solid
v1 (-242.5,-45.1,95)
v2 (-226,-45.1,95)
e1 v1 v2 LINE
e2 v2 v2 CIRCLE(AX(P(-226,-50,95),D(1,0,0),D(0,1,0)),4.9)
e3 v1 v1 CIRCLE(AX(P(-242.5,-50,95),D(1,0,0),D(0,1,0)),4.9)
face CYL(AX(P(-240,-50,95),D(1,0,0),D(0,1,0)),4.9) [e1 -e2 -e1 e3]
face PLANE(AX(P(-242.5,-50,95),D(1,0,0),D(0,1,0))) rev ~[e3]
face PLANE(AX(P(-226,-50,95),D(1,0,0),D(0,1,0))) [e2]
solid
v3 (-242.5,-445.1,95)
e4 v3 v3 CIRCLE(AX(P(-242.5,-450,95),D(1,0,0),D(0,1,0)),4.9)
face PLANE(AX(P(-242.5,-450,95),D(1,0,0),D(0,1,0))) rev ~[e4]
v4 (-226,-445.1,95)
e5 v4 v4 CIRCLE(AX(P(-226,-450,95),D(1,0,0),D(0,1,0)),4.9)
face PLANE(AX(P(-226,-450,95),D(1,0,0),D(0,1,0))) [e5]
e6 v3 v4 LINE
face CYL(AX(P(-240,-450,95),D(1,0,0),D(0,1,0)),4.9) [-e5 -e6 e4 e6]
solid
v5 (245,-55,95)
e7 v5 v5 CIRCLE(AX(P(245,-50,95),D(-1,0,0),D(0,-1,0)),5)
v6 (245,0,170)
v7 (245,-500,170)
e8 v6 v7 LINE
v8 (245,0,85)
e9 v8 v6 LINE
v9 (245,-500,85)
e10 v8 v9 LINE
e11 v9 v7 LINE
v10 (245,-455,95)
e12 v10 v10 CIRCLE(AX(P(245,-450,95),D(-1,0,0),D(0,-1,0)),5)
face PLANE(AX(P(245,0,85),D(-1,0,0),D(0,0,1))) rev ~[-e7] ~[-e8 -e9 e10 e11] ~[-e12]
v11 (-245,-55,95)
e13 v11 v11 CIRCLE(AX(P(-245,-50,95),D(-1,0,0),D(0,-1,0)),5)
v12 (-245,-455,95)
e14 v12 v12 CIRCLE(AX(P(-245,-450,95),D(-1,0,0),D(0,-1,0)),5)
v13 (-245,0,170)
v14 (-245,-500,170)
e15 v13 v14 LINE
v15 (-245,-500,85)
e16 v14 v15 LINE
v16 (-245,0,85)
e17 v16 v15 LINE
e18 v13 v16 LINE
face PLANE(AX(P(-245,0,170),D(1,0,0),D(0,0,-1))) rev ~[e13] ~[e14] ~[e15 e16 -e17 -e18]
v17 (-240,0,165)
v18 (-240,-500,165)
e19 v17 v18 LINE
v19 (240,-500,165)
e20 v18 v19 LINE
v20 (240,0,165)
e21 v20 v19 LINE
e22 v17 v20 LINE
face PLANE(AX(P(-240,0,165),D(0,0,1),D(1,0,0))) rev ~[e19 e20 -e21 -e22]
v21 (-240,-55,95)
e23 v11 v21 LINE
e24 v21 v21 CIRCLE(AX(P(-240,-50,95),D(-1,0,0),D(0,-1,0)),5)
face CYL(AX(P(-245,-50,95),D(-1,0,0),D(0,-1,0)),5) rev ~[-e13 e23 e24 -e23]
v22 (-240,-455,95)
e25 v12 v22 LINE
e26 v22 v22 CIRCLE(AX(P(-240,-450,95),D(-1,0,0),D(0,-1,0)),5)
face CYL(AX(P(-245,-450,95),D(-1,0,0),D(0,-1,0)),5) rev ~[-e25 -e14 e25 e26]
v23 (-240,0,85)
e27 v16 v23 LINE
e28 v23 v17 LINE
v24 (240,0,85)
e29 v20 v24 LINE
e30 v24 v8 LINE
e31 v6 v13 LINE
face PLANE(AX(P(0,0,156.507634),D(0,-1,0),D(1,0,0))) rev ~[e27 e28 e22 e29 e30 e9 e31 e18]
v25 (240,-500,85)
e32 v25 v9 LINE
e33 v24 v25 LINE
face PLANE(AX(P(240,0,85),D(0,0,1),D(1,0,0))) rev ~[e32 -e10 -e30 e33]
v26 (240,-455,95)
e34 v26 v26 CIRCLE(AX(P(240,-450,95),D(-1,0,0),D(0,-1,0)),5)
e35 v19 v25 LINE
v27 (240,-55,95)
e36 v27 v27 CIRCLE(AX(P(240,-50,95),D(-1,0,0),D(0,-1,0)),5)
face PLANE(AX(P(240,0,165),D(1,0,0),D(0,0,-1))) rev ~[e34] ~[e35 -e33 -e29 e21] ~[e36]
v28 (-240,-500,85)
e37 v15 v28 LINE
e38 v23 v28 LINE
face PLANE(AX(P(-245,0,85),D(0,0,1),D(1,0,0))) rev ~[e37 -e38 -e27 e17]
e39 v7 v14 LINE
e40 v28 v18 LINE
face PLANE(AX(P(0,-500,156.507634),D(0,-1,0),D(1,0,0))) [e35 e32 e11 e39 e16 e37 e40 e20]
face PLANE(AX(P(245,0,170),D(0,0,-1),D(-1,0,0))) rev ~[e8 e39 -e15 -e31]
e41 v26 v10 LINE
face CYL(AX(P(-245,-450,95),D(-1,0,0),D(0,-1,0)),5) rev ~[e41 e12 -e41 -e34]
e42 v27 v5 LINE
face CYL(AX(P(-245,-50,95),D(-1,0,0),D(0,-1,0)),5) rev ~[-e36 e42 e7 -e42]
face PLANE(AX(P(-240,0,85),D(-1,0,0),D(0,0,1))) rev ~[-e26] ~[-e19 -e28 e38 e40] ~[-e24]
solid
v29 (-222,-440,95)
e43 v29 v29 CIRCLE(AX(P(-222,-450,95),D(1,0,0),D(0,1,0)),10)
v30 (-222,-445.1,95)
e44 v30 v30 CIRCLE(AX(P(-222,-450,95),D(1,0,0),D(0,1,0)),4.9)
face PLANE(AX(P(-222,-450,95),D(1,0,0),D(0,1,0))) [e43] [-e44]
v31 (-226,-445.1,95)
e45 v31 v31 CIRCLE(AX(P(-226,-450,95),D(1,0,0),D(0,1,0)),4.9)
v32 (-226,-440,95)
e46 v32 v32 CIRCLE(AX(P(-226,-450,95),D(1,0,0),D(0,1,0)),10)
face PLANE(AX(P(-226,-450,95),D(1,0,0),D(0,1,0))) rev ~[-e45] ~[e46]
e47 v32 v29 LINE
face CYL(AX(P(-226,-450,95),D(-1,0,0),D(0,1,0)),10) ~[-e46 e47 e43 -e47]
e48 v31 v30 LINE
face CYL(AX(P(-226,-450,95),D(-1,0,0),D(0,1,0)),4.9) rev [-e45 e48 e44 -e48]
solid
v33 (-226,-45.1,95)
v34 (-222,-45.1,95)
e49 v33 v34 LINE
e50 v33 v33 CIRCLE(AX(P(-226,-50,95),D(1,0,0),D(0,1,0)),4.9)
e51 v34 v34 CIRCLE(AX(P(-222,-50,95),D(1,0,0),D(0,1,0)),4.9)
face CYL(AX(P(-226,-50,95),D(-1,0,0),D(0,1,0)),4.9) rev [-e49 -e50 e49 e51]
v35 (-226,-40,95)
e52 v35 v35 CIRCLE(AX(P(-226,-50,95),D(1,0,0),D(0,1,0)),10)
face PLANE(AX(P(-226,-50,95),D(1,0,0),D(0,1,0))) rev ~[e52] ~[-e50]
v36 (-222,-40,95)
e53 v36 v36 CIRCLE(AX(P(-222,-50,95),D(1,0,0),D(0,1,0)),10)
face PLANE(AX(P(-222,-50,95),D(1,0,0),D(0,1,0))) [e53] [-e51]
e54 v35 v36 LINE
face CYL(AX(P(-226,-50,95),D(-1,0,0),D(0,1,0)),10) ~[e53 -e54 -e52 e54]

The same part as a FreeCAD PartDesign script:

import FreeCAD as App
import Part
import Sketcher

doc = App.newDocument("Part")
body = doc.addObject("PartDesign::Body", "Body")

sketch1 = doc.addObject("Sketcher::SketchObject", "Sketch")
body.addObject(sketch1)
sketch1.AttachmentSupport = (doc.XZ_Plane, [""])
sketch1.MapMode = "FlatFace"
sketch1.addGeometry([
    Part.LineSegment(App.Vector(-245, 170, 0), App.Vector(-245, 85, 0)),
    Part.LineSegment(App.Vector(-245, 85, 0), App.Vector(-240, 85, 0)),
    Part.LineSegment(App.Vector(-240, 85, 0), App.Vector(-240, 165, 0)),
    Part.LineSegment(App.Vector(-240, 165, 0), App.Vector(240, 165, 0)),
    Part.LineSegment(App.Vector(240, 165, 0), App.Vector(240, 85, 0)),
    Part.LineSegment(App.Vector(240, 85, 0), App.Vector(245, 85, 0)),
    Part.LineSegment(App.Vector(245, 85, 0), App.Vector(245, 170, 0)),
    Part.LineSegment(App.Vector(245, 170, 0), App.Vector(-245, 170, 0)),
], False)
sketch1.addConstraint([
    Sketcher.Constraint("Coincident", 0, 2, 1, 1),
    Sketcher.Constraint("Coincident", 1, 2, 2, 1),
    Sketcher.Constraint("Coincident", 2, 2, 3, 1),
    Sketcher.Constraint("Coincident", 3, 2, 4, 1),
    Sketcher.Constraint("Coincident", 4, 2, 5, 1),
    Sketcher.Constraint("Coincident", 5, 2, 6, 1),
    Sketcher.Constraint("Coincident", 6, 2, 7, 1),
    Sketcher.Constraint("Coincident", 7, 2, 0, 1),
    Sketcher.Constraint("Vertical", 0),
    Sketcher.Constraint("Horizontal", 1),
    Sketcher.Constraint("Vertical", 2),
    Sketcher.Constraint("Horizontal", 3),
    Sketcher.Constraint("Vertical", 4),
    Sketcher.Constraint("Horizontal", 5),
    Sketcher.Constraint("Vertical", 6),
    Sketcher.Constraint("Horizontal", 7),
    Sketcher.Constraint("Symmetric", 1, 2, 4, 2, -2),
    Sketcher.Constraint("Equal", 1, 5),
    Sketcher.Constraint("DistanceX", 1, 1, 1, 2, 5.0),
    Sketcher.Constraint("DistanceX", 3, 1, 3, 2, 480.0),
    Sketcher.Constraint("DistanceY", 0, 2, 0, 1, 85.0),
    Sketcher.Constraint("DistanceY", 2, 1, 2, 2, 80.0),
    Sketcher.Constraint("DistanceY", -1, 1, 0, 2, 85.0),
])
pad1 = doc.addObject("PartDesign::Pad", "Pad")
body.addObject(pad1)
pad1.Profile = sketch1
pad1.Length = 500

sketch2 = doc.addObject("Sketcher::SketchObject", "Sketch001")
body.addObject(sketch2)
sketch2.AttachmentSupport = (doc.YZ_Plane, [""])
sketch2.MapMode = "FlatFace"
sketch2.AttachmentOffset = App.Placement(App.Vector(0, 0, -245), App.Rotation())
sketch2.addGeometry([
    Part.Circle(App.Vector(-50, 95, 0), App.Vector(0, 0, 1), 5),
    Part.Circle(App.Vector(-450, 95, 0), App.Vector(0, 0, 1), 5),
], False)
sketch2.addConstraint([
    Sketcher.Constraint("Equal", 0, 1),
    Sketcher.Constraint("Horizontal", 0, 3, 1, 3),
    Sketcher.Constraint("Diameter", 0, 10.0),
    Sketcher.Constraint("DistanceX", 0, 3, -1, 1, 50.0),
    Sketcher.Constraint("DistanceY", -1, 1, 0, 3, 95.0),
    Sketcher.Constraint("DistanceX", 1, 3, -1, 1, 450.0),
])
pocket1 = doc.addObject("PartDesign::Pocket", "Pocket")
body.addObject(pocket1)
pocket1.Profile = sketch2
pocket1.Type = "ThroughAll"
pocket1.Reversed = True
body2 = doc.addObject("PartDesign::Body", "Body001")
body2.AllowCompound = True

sketch3 = doc.addObject("Sketcher::SketchObject", "Sketch002")
body2.addObject(sketch3)
sketch3.AttachmentSupport = (doc.getObject("YZ_Plane001"), [""])
sketch3.MapMode = "FlatFace"
sketch3.AttachmentOffset = App.Placement(App.Vector(0, 0, -240), App.Rotation())
sketch3.addGeometry([
    Part.Circle(App.Vector(-450, 95, 0), App.Vector(0, 0, 1), 4.9),
    Part.Circle(App.Vector(-50, 95, 0), App.Vector(0, 0, 1), 4.9),
], False)
sketch3.addConstraint([
    Sketcher.Constraint("Equal", 0, 1),
    Sketcher.Constraint("Horizontal", 0, 3, 1, 3),
    Sketcher.Constraint("Diameter", 0, 9.8),
    Sketcher.Constraint("DistanceX", 0, 3, -1, 1, 450.0),
    Sketcher.Constraint("DistanceY", -1, 1, 0, 3, 95.0),
    Sketcher.Constraint("DistanceX", 1, 3, -1, 1, 50.0),
])
pad2 = doc.addObject("PartDesign::Pad", "Pad001")
body2.addObject(pad2)
pad2.Profile = sketch3
pad2.Type = "TwoLengths"
pad2.Length = 14
pad2.Length2 = 2.5

sketch4 = doc.addObject("Sketcher::SketchObject", "Sketch003")
body2.addObject(sketch4)
sketch4.AttachmentSupport = (doc.getObject("YZ_Plane001"), [""])
sketch4.MapMode = "FlatFace"
sketch4.AttachmentOffset = App.Placement(App.Vector(0, 0, -226), App.Rotation())
sketch4.addGeometry([
    Part.Circle(App.Vector(-50, 95, 0), App.Vector(0, 0, 1), 10),
    Part.Circle(App.Vector(-50, 95, 0), App.Vector(0, 0, 1), 4.9),
], False)
sketch4.addConstraint([
    Sketcher.Constraint("Coincident", 1, 3, 0, 3),
    Sketcher.Constraint("Diameter", 0, 20.0),
    Sketcher.Constraint("Diameter", 1, 9.8),
    Sketcher.Constraint("DistanceX", 0, 3, -1, 1, 50.0),
    Sketcher.Constraint("DistanceY", -1, 1, 0, 3, 95.0),
])
pad3 = doc.addObject("PartDesign::Pad", "Pad002")
body2.addObject(pad3)
pad3.Profile = sketch4
pad3.Length = 4

sketch5 = doc.addObject("Sketcher::SketchObject", "Sketch004")
body2.addObject(sketch5)
sketch5.AttachmentSupport = (doc.getObject("YZ_Plane001"), [""])
sketch5.MapMode = "FlatFace"
sketch5.AttachmentOffset = App.Placement(App.Vector(0, 0, -226), App.Rotation())
sketch5.addGeometry([
    Part.Circle(App.Vector(-450, 95, 0), App.Vector(0, 0, 1), 10),
    Part.Circle(App.Vector(-450, 95, 0), App.Vector(0, 0, 1), 4.9),
], False)
sketch5.addConstraint([
    Sketcher.Constraint("Coincident", 1, 3, 0, 3),
    Sketcher.Constraint("Diameter", 0, 20.0),
    Sketcher.Constraint("Diameter", 1, 9.8),
    Sketcher.Constraint("DistanceX", 0, 3, -1, 1, 450.0),
    Sketcher.Constraint("DistanceY", -1, 1, 0, 3, 95.0),
])
pad4 = doc.addObject("PartDesign::Pad", "Pad003")
body2.addObject(pad4)
pad4.Profile = sketch5
pad4.Length = 4

doc.recompute()
